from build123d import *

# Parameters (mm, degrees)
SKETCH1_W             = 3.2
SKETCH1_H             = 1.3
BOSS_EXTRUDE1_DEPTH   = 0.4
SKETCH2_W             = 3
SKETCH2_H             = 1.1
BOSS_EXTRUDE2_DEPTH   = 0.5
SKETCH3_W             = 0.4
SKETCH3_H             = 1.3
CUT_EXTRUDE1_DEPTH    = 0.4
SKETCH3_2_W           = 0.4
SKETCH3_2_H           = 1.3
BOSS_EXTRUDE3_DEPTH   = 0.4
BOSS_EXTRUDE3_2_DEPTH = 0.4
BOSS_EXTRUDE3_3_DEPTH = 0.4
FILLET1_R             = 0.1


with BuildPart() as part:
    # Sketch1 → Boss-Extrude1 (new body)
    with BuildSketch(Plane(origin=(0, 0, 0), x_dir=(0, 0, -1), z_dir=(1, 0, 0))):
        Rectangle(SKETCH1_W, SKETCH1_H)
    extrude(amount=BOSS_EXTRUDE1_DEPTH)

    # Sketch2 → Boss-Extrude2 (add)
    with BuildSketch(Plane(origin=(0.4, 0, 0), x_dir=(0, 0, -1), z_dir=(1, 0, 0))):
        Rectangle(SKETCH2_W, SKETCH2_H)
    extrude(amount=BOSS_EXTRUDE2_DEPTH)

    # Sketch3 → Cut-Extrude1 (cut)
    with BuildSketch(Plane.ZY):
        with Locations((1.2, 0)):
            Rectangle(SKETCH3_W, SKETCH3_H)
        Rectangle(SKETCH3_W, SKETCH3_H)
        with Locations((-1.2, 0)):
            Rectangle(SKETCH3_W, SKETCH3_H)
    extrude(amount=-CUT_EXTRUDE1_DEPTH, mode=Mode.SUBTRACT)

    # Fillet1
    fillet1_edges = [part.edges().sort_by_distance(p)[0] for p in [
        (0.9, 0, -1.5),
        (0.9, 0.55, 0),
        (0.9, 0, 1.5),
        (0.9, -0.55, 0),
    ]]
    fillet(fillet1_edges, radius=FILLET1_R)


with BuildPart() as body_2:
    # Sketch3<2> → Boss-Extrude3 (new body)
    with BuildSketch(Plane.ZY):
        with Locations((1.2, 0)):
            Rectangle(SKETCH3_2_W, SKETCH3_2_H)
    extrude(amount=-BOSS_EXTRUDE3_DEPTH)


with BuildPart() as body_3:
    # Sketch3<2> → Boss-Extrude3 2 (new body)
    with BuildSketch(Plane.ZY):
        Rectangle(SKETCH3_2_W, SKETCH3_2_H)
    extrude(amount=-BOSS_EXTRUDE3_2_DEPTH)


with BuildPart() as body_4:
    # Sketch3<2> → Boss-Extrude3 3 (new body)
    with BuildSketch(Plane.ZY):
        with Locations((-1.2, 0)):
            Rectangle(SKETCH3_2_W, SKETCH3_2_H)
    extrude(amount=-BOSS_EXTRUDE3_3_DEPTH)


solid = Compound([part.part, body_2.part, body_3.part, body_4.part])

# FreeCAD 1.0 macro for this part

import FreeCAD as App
import Part
import Sketcher

V = App.Vector
Q = App.Units.Quantity


def edges_at(feature, points):
    """Names of the edges that pass closest to the given points."""
    edges = feature.Shape.Edges
    near = lambda p: min(range(len(edges)), key=lambda i: edges[i].distToShape(Part.Vertex(*p))[0])
    return sorted({f"Edge{near(p) + 1}" for p in points})

doc = App.newDocument("Part")
body = doc.addObject("PartDesign::Body", "Body")

# Sketch on YZ plane
sketch1 = body.newObject("Sketcher::SketchObject", "Sketch")
sketch1.AttachmentSupport = (doc.getObject("YZ_Plane"), [""])
sketch1.MapMode = "FlatFace"
sketch1.addGeometry([
    Part.LineSegment(V(0.7, 1.6, 0), V(-0.7, 1.6, 0)),
    Part.LineSegment(V(-0.7, 1.6, 0), V(-0.7, -1.6, 0)),
    Part.LineSegment(V(-0.7, -1.6, 0), V(0.7, -1.6, 0)),
    Part.LineSegment(V(0.7, -1.6, 0), V(0.7, 1.6, 0)),
], False)
sketch1.addConstraint([
    Sketcher.Constraint("Coincident", 0, 2, 1, 1),
    Sketcher.Constraint("Coincident", 1, 2, 2, 1),
    Sketcher.Constraint("Coincident", 2, 2, 3, 1),
    Sketcher.Constraint("Coincident", 3, 2, 0, 1),
    Sketcher.Constraint("Horizontal", 0),
    Sketcher.Constraint("Vertical", 1),
    Sketcher.Constraint("Horizontal", 2),
    Sketcher.Constraint("Vertical", 3),
    Sketcher.Constraint("Symmetric", 0, 2, 2, 2, -1, 1),
    Sketcher.Constraint("DistanceX", 0, 2, 0, 1, Q("1.3 mm")),
    Sketcher.Constraint("DistanceY", 1, 2, 1, 1, Q("3.2 mm")),
])
pad1 = body.newObject("PartDesign::Pad", "Pad")
pad1.Profile = sketch1
pad1.Length = 0.4

# Sketch on YZ plane
sketch2 = body.newObject("Sketcher::SketchObject", "Sketch001")
sketch2.AttachmentSupport = (doc.getObject("YZ_Plane"), [""])
sketch2.MapMode = "FlatFace"
sketch2.AttachmentOffset = App.Placement(V(0, 0, 0.4), App.Rotation())
sketch2.addGeometry([
    Part.LineSegment(V(0.6, 1.5, 0), V(-0.6, 1.5, 0)),
    Part.LineSegment(V(-0.6, 1.5, 0), V(-0.6, -1.5, 0)),
    Part.LineSegment(V(-0.6, -1.5, 0), V(0.6, -1.5, 0)),
    Part.LineSegment(V(0.6, -1.5, 0), V(0.6, 1.5, 0)),
], False)
sketch2.addConstraint([
    Sketcher.Constraint("Coincident", 0, 2, 1, 1),
    Sketcher.Constraint("Coincident", 1, 2, 2, 1),
    Sketcher.Constraint("Coincident", 2, 2, 3, 1),
    Sketcher.Constraint("Coincident", 3, 2, 0, 1),
    Sketcher.Constraint("Horizontal", 0),
    Sketcher.Constraint("Vertical", 1),
    Sketcher.Constraint("Horizontal", 2),
    Sketcher.Constraint("Vertical", 3),
    Sketcher.Constraint("Symmetric", 0, 2, 2, 2, -1, 1),
    Sketcher.Constraint("DistanceY", 1, 2, 1, 1, Q("3 mm")),
    Sketcher.Constraint("DistanceX", 0, 2, 0, 1, Q("1.1 mm")),
])
pad2 = body.newObject("PartDesign::Pad", "Pad001")
pad2.Profile = sketch2
pad2.Length = 0.5

# Sketch on YZ plane
sketch3 = body.newObject("Sketcher::SketchObject", "Sketch002")
sketch3.AttachmentSupport = (doc.getObject("YZ_Plane"), [""])
sketch3.MapMode = "FlatFace"
sketch3.addGeometry([
    Part.LineSegment(V(0.65, 1, 0), V(-0.65, 1, 0)),  # 0
    Part.LineSegment(V(-0.65, 1, 0), V(-0.65, 1.4, 0)),  # 1
    Part.LineSegment(V(-0.65, 1.4, 0), V(0.65, 1.4, 0)),  # 2
    Part.LineSegment(V(0.65, 1.4, 0), V(0.65, 1, 0)),  # 3
    Part.LineSegment(V(0.65, -0.2, 0), V(-0.65, -0.2, 0)),  # 4
    Part.LineSegment(V(-0.65, -0.2, 0), V(-0.65, 0.2, 0)),  # 5
    Part.LineSegment(V(-0.65, 0.2, 0), V(0.65, 0.2, 0)),  # 6
    Part.LineSegment(V(0.65, 0.2, 0), V(0.65, -0.2, 0)),  # 7
    Part.LineSegment(V(0.65, -1.4, 0), V(-0.65, -1.4, 0)),  # 8
    Part.LineSegment(V(-0.65, -1.4, 0), V(-0.65, -1, 0)),  # 9
    Part.LineSegment(V(-0.65, -1, 0), V(0.65, -1, 0)),  # 10
    Part.LineSegment(V(0.65, -1, 0), V(0.65, -1.4, 0)),  # 11
], False)
sketch3.addConstraint([
    Sketcher.Constraint("Coincident", 0, 2, 1, 1),
    Sketcher.Constraint("Coincident", 1, 2, 2, 1),
    Sketcher.Constraint("Coincident", 2, 2, 3, 1),
    Sketcher.Constraint("Coincident", 3, 2, 0, 1),
    Sketcher.Constraint("Coincident", 4, 2, 5, 1),
    Sketcher.Constraint("Coincident", 5, 2, 6, 1),
    Sketcher.Constraint("Coincident", 6, 2, 7, 1),
    Sketcher.Constraint("Coincident", 7, 2, 4, 1),
    Sketcher.Constraint("Coincident", 8, 2, 9, 1),
    Sketcher.Constraint("Coincident", 9, 2, 10, 1),
    Sketcher.Constraint("Coincident", 10, 2, 11, 1),
    Sketcher.Constraint("Coincident", 11, 2, 8, 1),
    Sketcher.Constraint("Horizontal", 0),
    Sketcher.Constraint("Vertical", 1),
    Sketcher.Constraint("Horizontal", 2),
    Sketcher.Constraint("Vertical", 3),
    Sketcher.Constraint("Horizontal", 4),
    Sketcher.Constraint("Vertical", 5),
    Sketcher.Constraint("Horizontal", 6),
    Sketcher.Constraint("Vertical", 7),
    Sketcher.Constraint("Horizontal", 8),
    Sketcher.Constraint("Vertical", 9),
    Sketcher.Constraint("Horizontal", 10),
    Sketcher.Constraint("Vertical", 11),
    Sketcher.Constraint("Symmetric", 4, 2, 6, 2, -1, 1),
    Sketcher.Constraint("Symmetric", 2, 2, 8, 2, -1, 1),
    Sketcher.Constraint("Symmetric", 0, 2, 10, 2, -1, 1),
    Sketcher.Constraint("Vertical", 1, 2, 4, 2),
    Sketcher.Constraint("Vertical", 3, 2, 6, 2),
    Sketcher.Constraint("Equal", 3, 5),
    Sketcher.Constraint("DistanceX", 0, 2, 0, 1, Q("1.3 mm")),
    Sketcher.Constraint("DistanceY", 1, 1, 1, 2, Q("0.4 mm")),
    Sketcher.Constraint("DistanceY", -1, 1, 0, 2, Q("1 mm")),
])
pocket1 = body.newObject("PartDesign::Pocket", "Pocket")
pocket1.Profile = sketch3
pocket1.Length = 0.4
pocket1.Reversed = True
doc.recompute()

fillet = body.newObject("PartDesign::Fillet", "Fillet")
fillet.Base = (pocket1, edges_at(pocket1, [
    (0.9, 0, -1.5),
    (0.9, 0.55, 0),
    (0.9, 0, 1.5),
    (0.9, -0.55, 0),
]))
fillet.Radius = 0.1
body2 = doc.addObject("PartDesign::Body", "Body001")

# Sketch on YZ plane
sketch4 = body2.newObject("Sketcher::SketchObject", "Sketch003")
sketch4.AttachmentSupport = (doc.getObject("YZ_Plane001"), [""])
sketch4.MapMode = "FlatFace"
sketch4.addGeometry([
    Part.LineSegment(V(0.65, 1, 0), V(-0.65, 1, 0)),
    Part.LineSegment(V(-0.65, 1, 0), V(-0.65, 1.4, 0)),
    Part.LineSegment(V(-0.65, 1.4, 0), V(0.65, 1.4, 0)),
    Part.LineSegment(V(0.65, 1.4, 0), V(0.65, 1, 0)),
], False)
sketch4.addConstraint([
    Sketcher.Constraint("Coincident", 0, 2, 1, 1),
    Sketcher.Constraint("Coincident", 1, 2, 2, 1),
    Sketcher.Constraint("Coincident", 2, 2, 3, 1),
    Sketcher.Constraint("Coincident", 3, 2, 0, 1),
    Sketcher.Constraint("Horizontal", 0),
    Sketcher.Constraint("Vertical", 1),
    Sketcher.Constraint("Horizontal", 2),
    Sketcher.Constraint("Vertical", 3),
    Sketcher.Constraint("DistanceX", 0, 2, 0, 1, Q("1.3 mm")),
    Sketcher.Constraint("DistanceY", 1, 1, 1, 2, Q("0.4 mm")),
    Sketcher.Constraint("DistanceY", -1, 1, 0, 2, Q("1 mm")),
    Sketcher.Constraint("DistanceX", 0, 2, -1, 1, Q("0.65 mm")),
])
pad3 = body2.newObject("PartDesign::Pad", "Pad002")
pad3.Profile = sketch4
pad3.Length = 0.4
body3 = doc.addObject("PartDesign::Body", "Body002")

# Sketch on YZ plane
sketch5 = body3.newObject("Sketcher::SketchObject", "Sketch004")
sketch5.AttachmentSupport = (doc.getObject("YZ_Plane002"), [""])
sketch5.MapMode = "FlatFace"
sketch5.addGeometry([
    Part.LineSegment(V(0.65, -0.2, 0), V(-0.65, -0.2, 0)),
    Part.LineSegment(V(-0.65, -0.2, 0), V(-0.65, 0.2, 0)),
    Part.LineSegment(V(-0.65, 0.2, 0), V(0.65, 0.2, 0)),
    Part.LineSegment(V(0.65, 0.2, 0), V(0.65, -0.2, 0)),
], False)
sketch5.addConstraint([
    Sketcher.Constraint("Coincident", 0, 2, 1, 1),
    Sketcher.Constraint("Coincident", 1, 2, 2, 1),
    Sketcher.Constraint("Coincident", 2, 2, 3, 1),
    Sketcher.Constraint("Coincident", 3, 2, 0, 1),
    Sketcher.Constraint("Horizontal", 0),
    Sketcher.Constraint("Vertical", 1),
    Sketcher.Constraint("Horizontal", 2),
    Sketcher.Constraint("Vertical", 3),
    Sketcher.Constraint("Symmetric", 0, 2, 2, 2, -1, 1),
    Sketcher.Constraint("DistanceX", 0, 2, 0, 1, Q("1.3 mm")),
    Sketcher.Constraint("DistanceY", 1, 1, 1, 2, Q("0.4 mm")),
])
pad4 = body3.newObject("PartDesign::Pad", "Pad003")
pad4.Profile = sketch5
pad4.Length = 0.4
body4 = doc.addObject("PartDesign::Body", "Body003")

# Sketch on YZ plane
sketch6 = body4.newObject("Sketcher::SketchObject", "Sketch005")
sketch6.AttachmentSupport = (doc.getObject("YZ_Plane003"), [""])
sketch6.MapMode = "FlatFace"
sketch6.addGeometry([
    Part.LineSegment(V(0.65, -1.4, 0), V(-0.65, -1.4, 0)),
    Part.LineSegment(V(-0.65, -1.4, 0), V(-0.65, -1, 0)),
    Part.LineSegment(V(-0.65, -1, 0), V(0.65, -1, 0)),
    Part.LineSegment(V(0.65, -1, 0), V(0.65, -1.4, 0)),
], False)
sketch6.addConstraint([
    Sketcher.Constraint("Coincident", 0, 2, 1, 1),
    Sketcher.Constraint("Coincident", 1, 2, 2, 1),
    Sketcher.Constraint("Coincident", 2, 2, 3, 1),
    Sketcher.Constraint("Coincident", 3, 2, 0, 1),
    Sketcher.Constraint("Horizontal", 0),
    Sketcher.Constraint("Vertical", 1),
    Sketcher.Constraint("Horizontal", 2),
    Sketcher.Constraint("Vertical", 3),
    Sketcher.Constraint("DistanceX", 0, 2, 0, 1, Q("1.3 mm")),
    Sketcher.Constraint("DistanceY", 1, 1, 1, 2, Q("0.4 mm")),
    Sketcher.Constraint("DistanceY", 1, 2, -1, 1, Q("1 mm")),
    Sketcher.Constraint("DistanceX", 0, 2, -1, 1, Q("0.65 mm")),
])
pad5 = body4.newObject("PartDesign::Pad", "Pad004")
pad5.Profile = sketch6
pad5.Length = 0.4

doc.recompute()
